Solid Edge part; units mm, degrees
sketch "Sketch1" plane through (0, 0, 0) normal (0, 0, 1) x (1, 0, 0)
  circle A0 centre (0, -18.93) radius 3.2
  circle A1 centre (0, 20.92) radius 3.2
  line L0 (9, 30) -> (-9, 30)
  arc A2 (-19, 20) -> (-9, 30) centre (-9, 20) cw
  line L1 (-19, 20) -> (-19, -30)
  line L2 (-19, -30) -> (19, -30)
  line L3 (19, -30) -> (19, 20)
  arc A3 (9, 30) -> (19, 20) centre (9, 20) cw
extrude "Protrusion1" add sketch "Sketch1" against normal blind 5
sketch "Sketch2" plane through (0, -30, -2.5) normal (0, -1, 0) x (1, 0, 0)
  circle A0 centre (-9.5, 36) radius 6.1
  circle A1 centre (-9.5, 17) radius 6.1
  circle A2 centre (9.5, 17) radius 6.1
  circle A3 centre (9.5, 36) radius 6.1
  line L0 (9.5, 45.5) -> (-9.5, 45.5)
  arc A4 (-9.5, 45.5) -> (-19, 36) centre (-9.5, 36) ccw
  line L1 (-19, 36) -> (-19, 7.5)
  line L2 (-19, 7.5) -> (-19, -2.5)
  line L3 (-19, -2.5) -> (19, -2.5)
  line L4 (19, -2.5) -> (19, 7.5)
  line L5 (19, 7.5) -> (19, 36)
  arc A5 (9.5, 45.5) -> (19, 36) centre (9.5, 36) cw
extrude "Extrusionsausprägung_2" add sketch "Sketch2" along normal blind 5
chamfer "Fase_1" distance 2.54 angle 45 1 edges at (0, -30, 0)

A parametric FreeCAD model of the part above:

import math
import FreeCAD as App
import Part
import Sketcher

V = App.Vector
Q = App.Units.Quantity


def edges_at(feature, points):
    """Names of the edges that pass closest to the given points."""
    edges = feature.Shape.Edges
    near = lambda p: min(range(len(edges)), key=lambda i: edges[i].distToShape(Part.Vertex(*p))[0])
    return sorted({f"Edge{near(p) + 1}" for p in points})

doc = App.newDocument("Part")
body = doc.addObject("PartDesign::Body", "Body")

sketch1 = doc.addObject("Sketcher::SketchObject", "Sketch")
body.addObject(sketch1)
sketch1.AttachmentSupport = (doc.XY_Plane, [""])
sketch1.MapMode = "FlatFace"
sketch1.addGeometry(Part.ArcOfCircle(Part.Circle(V(9, 20, 0), V(0, 0, 1), 10), math.radians(0), math.radians(90)), False)
sketch1.addGeometry(Part.LineSegment(V(9, 30, 0), V(-9, 30, 0)), False)
sketch1.addGeometry(Part.ArcOfCircle(Part.Circle(V(-9, 20, 0), V(0, 0, 1), 10), math.radians(90), math.radians(180)), False)
sketch1.addGeometry(Part.LineSegment(V(-19, 20, 0), V(-19, -30, 0)), False)
sketch1.addGeometry(Part.LineSegment(V(-19, -30, 0), V(19, -30, 0)), False)
sketch1.addGeometry(Part.LineSegment(V(19, -30, 0), V(19, 20, 0)), False)
sketch1.addGeometry(Part.Circle(V(0, -18.93, 0), V(0, 0, 1), 3.2), False)
sketch1.addGeometry(Part.Circle(V(0, 20.92, 0), V(0, 0, 1), 3.2), False)
sketch1.addConstraint(Sketcher.Constraint("Tangent", 0, 2, 1, 1))
sketch1.addConstraint(Sketcher.Constraint("Tangent", 1, 2, 2, 1))
sketch1.addConstraint(Sketcher.Constraint("Tangent", 2, 2, 3, 1))
sketch1.addConstraint(Sketcher.Constraint("Coincident", 3, 2, 4, 1))
sketch1.addConstraint(Sketcher.Constraint("Coincident", 4, 2, 5, 1))
sketch1.addConstraint(Sketcher.Constraint("Tangent", 5, 2, 0, 1))
sketch1.addConstraint(Sketcher.Constraint("Horizontal", 1))
sketch1.addConstraint(Sketcher.Constraint("Vertical", 3))
sketch1.addConstraint(Sketcher.Constraint("Horizontal", 4))
sketch1.addConstraint(Sketcher.Constraint("Vertical", 5))
sketch1.addConstraint(Sketcher.Constraint("Equal", 0, 2))
sketch1.addConstraint(Sketcher.Constraint("Equal", 6, 7))
sketch1.addConstraint(Sketcher.Constraint("PointOnObject", 6, 3, -2))
sketch1.addConstraint(Sketcher.Constraint("PointOnObject", 7, 3, -2))
sketch1.addConstraint(Sketcher.Constraint("Radius", 0, Q("10 mm")))
sketch1.addConstraint(Sketcher.Constraint("Diameter", 6, Q("6.4 mm")))
sketch1.addConstraint(Sketcher.Constraint("DistanceX", 1, 2, 1, 1, Q("18 mm")))
sketch1.addConstraint(Sketcher.Constraint("DistanceY", 3, 2, 3, 1, Q("50 mm")))
sketch1.addConstraint(Sketcher.Constraint("DistanceX", -1, 1, 0, 3, Q("9 mm")))
sketch1.addConstraint(Sketcher.Constraint("DistanceY", -1, 1, 0, 3, Q("20 mm")))
sketch1.addConstraint(Sketcher.Constraint("DistanceY", 6, 3, -1, 1, Q("18.93 mm")))
sketch1.addConstraint(Sketcher.Constraint("DistanceY", -1, 1, 7, 3, Q("20.92 mm")))
pad1 = doc.addObject("PartDesign::Pad", "Pad")
body.addObject(pad1)
pad1.Profile = sketch1
pad1.Length = 5
pad1.Reversed = True

sketch2 = doc.addObject("Sketcher::SketchObject", "Sketch001")
body.addObject(sketch2)
sketch2.AttachmentSupport = (doc.XZ_Plane, [""])
sketch2.MapMode = "FlatFace"
sketch2.AttachmentOffset = App.Placement(V(0, 0, 30), App.Rotation())
sketch2.addGeometry(Part.ArcOfCircle(Part.Circle(V(9.5, 33.5, 0), V(0, 0, 1), 9.5), math.radians(0), math.radians(90)), False)
sketch2.addGeometry(Part.LineSegment(V(9.5, 43, 0), V(-9.5, 43, 0)), False)
sketch2.addGeometry(Part.ArcOfCircle(Part.Circle(V(-9.5, 33.5, 0), V(0, 0, 1), 9.5), math.radians(90), math.radians(180)), False)
sketch2.addGeometry(Part.LineSegment(V(-19, 33.5, 0), V(-19, -5, 0)), False)
sketch2.addGeometry(Part.LineSegment(V(-19, -5, 0), V(19, -5, 0)), False)
sketch2.addGeometry(Part.LineSegment(V(19, -5, 0), V(19, 33.5, 0)), False)
sketch2.addGeometry(Part.Circle(V(-9.5, 14.5, 0), V(0, 0, 1), 6.1), False)
sketch2.addGeometry(Part.Circle(V(9.5, 14.5, 0), V(0, 0, 1), 6.1), False)
sketch2.addGeometry(Part.Circle(V(-9.5, 33.5, 0), V(0, 0, 1), 6.1), False)
sketch2.addGeometry(Part.Circle(V(9.5, 33.5, 0), V(0, 0, 1), 6.1), False)
sketch2.addConstraint(Sketcher.Constraint("Tangent", 0, 2, 1, 1))
sketch2.addConstraint(Sketcher.Constraint("Tangent", 1, 2, 2, 1))
sketch2.addConstraint(Sketcher.Constraint("Tangent", 2, 2, 3, 1))
sketch2.addConstraint(Sketcher.Constraint("Coincident", 3, 2, 4, 1))
sketch2.addConstraint(Sketcher.Constraint("Coincident", 4, 2, 5, 1))
sketch2.addConstraint(Sketcher.Constraint("Tangent", 5, 2, 0, 1))
sketch2.addConstraint(Sketcher.Constraint("Horizontal", 1))
sketch2.addConstraint(Sketcher.Constraint("Vertical", 3))
sketch2.addConstraint(Sketcher.Constraint("Horizontal", 4))
sketch2.addConstraint(Sketcher.Constraint("Vertical", 5))
sketch2.addConstraint(Sketcher.Constraint("Coincident", 8, 3, 2, 3))
sketch2.addConstraint(Sketcher.Constraint("Coincident", 9, 3, 0, 3))
sketch2.addConstraint(Sketcher.Constraint("Equal", 0, 2))
sketch2.addConstraint(Sketcher.Constraint("Equal", 6, 7))
sketch2.addConstraint(Sketcher.Constraint("Equal", 7, 8))
sketch2.addConstraint(Sketcher.Constraint("Equal", 8, 9))
sketch2.addConstraint(Sketcher.Constraint("Symmetric", 6, 3, 7, 3, -2))
sketch2.addConstraint(Sketcher.Constraint("Vertical", 2, 3, 6, 3))
sketch2.addConstraint(Sketcher.Constraint("Vertical", 0, 3, 7, 3))
sketch2.addConstraint(Sketcher.Constraint("Diameter", 6, Q("12.2 mm")))
sketch2.addConstraint(Sketcher.Constraint("Radius", 0, Q("9.5 mm")))
sketch2.addConstraint(Sketcher.Constraint("DistanceX", 1, 2, 1, 1, Q("19 mm")))
sketch2.addConstraint(Sketcher.Constraint("DistanceY", 3, 2, 3, 1, Q("38.5 mm")))
sketch2.addConstraint(Sketcher.Constraint("DistanceY", -1, 1, 0, 2, Q("43 mm")))
sketch2.addConstraint(Sketcher.Constraint("DistanceY", 6, 3, 2, 3, Q("19 mm")))
pad2 = doc.addObject("PartDesign::Pad", "Pad001")
body.addObject(pad2)
pad2.Profile = sketch2
pad2.Length = 5
doc.recompute()

chamfer = doc.addObject("PartDesign::Chamfer", "Chamfer")
body.addObject(chamfer)
chamfer.Base = (pad2, edges_at(pad2, [(0, -30, 0)]))
chamfer.Size = 2.54

doc.recompute()
